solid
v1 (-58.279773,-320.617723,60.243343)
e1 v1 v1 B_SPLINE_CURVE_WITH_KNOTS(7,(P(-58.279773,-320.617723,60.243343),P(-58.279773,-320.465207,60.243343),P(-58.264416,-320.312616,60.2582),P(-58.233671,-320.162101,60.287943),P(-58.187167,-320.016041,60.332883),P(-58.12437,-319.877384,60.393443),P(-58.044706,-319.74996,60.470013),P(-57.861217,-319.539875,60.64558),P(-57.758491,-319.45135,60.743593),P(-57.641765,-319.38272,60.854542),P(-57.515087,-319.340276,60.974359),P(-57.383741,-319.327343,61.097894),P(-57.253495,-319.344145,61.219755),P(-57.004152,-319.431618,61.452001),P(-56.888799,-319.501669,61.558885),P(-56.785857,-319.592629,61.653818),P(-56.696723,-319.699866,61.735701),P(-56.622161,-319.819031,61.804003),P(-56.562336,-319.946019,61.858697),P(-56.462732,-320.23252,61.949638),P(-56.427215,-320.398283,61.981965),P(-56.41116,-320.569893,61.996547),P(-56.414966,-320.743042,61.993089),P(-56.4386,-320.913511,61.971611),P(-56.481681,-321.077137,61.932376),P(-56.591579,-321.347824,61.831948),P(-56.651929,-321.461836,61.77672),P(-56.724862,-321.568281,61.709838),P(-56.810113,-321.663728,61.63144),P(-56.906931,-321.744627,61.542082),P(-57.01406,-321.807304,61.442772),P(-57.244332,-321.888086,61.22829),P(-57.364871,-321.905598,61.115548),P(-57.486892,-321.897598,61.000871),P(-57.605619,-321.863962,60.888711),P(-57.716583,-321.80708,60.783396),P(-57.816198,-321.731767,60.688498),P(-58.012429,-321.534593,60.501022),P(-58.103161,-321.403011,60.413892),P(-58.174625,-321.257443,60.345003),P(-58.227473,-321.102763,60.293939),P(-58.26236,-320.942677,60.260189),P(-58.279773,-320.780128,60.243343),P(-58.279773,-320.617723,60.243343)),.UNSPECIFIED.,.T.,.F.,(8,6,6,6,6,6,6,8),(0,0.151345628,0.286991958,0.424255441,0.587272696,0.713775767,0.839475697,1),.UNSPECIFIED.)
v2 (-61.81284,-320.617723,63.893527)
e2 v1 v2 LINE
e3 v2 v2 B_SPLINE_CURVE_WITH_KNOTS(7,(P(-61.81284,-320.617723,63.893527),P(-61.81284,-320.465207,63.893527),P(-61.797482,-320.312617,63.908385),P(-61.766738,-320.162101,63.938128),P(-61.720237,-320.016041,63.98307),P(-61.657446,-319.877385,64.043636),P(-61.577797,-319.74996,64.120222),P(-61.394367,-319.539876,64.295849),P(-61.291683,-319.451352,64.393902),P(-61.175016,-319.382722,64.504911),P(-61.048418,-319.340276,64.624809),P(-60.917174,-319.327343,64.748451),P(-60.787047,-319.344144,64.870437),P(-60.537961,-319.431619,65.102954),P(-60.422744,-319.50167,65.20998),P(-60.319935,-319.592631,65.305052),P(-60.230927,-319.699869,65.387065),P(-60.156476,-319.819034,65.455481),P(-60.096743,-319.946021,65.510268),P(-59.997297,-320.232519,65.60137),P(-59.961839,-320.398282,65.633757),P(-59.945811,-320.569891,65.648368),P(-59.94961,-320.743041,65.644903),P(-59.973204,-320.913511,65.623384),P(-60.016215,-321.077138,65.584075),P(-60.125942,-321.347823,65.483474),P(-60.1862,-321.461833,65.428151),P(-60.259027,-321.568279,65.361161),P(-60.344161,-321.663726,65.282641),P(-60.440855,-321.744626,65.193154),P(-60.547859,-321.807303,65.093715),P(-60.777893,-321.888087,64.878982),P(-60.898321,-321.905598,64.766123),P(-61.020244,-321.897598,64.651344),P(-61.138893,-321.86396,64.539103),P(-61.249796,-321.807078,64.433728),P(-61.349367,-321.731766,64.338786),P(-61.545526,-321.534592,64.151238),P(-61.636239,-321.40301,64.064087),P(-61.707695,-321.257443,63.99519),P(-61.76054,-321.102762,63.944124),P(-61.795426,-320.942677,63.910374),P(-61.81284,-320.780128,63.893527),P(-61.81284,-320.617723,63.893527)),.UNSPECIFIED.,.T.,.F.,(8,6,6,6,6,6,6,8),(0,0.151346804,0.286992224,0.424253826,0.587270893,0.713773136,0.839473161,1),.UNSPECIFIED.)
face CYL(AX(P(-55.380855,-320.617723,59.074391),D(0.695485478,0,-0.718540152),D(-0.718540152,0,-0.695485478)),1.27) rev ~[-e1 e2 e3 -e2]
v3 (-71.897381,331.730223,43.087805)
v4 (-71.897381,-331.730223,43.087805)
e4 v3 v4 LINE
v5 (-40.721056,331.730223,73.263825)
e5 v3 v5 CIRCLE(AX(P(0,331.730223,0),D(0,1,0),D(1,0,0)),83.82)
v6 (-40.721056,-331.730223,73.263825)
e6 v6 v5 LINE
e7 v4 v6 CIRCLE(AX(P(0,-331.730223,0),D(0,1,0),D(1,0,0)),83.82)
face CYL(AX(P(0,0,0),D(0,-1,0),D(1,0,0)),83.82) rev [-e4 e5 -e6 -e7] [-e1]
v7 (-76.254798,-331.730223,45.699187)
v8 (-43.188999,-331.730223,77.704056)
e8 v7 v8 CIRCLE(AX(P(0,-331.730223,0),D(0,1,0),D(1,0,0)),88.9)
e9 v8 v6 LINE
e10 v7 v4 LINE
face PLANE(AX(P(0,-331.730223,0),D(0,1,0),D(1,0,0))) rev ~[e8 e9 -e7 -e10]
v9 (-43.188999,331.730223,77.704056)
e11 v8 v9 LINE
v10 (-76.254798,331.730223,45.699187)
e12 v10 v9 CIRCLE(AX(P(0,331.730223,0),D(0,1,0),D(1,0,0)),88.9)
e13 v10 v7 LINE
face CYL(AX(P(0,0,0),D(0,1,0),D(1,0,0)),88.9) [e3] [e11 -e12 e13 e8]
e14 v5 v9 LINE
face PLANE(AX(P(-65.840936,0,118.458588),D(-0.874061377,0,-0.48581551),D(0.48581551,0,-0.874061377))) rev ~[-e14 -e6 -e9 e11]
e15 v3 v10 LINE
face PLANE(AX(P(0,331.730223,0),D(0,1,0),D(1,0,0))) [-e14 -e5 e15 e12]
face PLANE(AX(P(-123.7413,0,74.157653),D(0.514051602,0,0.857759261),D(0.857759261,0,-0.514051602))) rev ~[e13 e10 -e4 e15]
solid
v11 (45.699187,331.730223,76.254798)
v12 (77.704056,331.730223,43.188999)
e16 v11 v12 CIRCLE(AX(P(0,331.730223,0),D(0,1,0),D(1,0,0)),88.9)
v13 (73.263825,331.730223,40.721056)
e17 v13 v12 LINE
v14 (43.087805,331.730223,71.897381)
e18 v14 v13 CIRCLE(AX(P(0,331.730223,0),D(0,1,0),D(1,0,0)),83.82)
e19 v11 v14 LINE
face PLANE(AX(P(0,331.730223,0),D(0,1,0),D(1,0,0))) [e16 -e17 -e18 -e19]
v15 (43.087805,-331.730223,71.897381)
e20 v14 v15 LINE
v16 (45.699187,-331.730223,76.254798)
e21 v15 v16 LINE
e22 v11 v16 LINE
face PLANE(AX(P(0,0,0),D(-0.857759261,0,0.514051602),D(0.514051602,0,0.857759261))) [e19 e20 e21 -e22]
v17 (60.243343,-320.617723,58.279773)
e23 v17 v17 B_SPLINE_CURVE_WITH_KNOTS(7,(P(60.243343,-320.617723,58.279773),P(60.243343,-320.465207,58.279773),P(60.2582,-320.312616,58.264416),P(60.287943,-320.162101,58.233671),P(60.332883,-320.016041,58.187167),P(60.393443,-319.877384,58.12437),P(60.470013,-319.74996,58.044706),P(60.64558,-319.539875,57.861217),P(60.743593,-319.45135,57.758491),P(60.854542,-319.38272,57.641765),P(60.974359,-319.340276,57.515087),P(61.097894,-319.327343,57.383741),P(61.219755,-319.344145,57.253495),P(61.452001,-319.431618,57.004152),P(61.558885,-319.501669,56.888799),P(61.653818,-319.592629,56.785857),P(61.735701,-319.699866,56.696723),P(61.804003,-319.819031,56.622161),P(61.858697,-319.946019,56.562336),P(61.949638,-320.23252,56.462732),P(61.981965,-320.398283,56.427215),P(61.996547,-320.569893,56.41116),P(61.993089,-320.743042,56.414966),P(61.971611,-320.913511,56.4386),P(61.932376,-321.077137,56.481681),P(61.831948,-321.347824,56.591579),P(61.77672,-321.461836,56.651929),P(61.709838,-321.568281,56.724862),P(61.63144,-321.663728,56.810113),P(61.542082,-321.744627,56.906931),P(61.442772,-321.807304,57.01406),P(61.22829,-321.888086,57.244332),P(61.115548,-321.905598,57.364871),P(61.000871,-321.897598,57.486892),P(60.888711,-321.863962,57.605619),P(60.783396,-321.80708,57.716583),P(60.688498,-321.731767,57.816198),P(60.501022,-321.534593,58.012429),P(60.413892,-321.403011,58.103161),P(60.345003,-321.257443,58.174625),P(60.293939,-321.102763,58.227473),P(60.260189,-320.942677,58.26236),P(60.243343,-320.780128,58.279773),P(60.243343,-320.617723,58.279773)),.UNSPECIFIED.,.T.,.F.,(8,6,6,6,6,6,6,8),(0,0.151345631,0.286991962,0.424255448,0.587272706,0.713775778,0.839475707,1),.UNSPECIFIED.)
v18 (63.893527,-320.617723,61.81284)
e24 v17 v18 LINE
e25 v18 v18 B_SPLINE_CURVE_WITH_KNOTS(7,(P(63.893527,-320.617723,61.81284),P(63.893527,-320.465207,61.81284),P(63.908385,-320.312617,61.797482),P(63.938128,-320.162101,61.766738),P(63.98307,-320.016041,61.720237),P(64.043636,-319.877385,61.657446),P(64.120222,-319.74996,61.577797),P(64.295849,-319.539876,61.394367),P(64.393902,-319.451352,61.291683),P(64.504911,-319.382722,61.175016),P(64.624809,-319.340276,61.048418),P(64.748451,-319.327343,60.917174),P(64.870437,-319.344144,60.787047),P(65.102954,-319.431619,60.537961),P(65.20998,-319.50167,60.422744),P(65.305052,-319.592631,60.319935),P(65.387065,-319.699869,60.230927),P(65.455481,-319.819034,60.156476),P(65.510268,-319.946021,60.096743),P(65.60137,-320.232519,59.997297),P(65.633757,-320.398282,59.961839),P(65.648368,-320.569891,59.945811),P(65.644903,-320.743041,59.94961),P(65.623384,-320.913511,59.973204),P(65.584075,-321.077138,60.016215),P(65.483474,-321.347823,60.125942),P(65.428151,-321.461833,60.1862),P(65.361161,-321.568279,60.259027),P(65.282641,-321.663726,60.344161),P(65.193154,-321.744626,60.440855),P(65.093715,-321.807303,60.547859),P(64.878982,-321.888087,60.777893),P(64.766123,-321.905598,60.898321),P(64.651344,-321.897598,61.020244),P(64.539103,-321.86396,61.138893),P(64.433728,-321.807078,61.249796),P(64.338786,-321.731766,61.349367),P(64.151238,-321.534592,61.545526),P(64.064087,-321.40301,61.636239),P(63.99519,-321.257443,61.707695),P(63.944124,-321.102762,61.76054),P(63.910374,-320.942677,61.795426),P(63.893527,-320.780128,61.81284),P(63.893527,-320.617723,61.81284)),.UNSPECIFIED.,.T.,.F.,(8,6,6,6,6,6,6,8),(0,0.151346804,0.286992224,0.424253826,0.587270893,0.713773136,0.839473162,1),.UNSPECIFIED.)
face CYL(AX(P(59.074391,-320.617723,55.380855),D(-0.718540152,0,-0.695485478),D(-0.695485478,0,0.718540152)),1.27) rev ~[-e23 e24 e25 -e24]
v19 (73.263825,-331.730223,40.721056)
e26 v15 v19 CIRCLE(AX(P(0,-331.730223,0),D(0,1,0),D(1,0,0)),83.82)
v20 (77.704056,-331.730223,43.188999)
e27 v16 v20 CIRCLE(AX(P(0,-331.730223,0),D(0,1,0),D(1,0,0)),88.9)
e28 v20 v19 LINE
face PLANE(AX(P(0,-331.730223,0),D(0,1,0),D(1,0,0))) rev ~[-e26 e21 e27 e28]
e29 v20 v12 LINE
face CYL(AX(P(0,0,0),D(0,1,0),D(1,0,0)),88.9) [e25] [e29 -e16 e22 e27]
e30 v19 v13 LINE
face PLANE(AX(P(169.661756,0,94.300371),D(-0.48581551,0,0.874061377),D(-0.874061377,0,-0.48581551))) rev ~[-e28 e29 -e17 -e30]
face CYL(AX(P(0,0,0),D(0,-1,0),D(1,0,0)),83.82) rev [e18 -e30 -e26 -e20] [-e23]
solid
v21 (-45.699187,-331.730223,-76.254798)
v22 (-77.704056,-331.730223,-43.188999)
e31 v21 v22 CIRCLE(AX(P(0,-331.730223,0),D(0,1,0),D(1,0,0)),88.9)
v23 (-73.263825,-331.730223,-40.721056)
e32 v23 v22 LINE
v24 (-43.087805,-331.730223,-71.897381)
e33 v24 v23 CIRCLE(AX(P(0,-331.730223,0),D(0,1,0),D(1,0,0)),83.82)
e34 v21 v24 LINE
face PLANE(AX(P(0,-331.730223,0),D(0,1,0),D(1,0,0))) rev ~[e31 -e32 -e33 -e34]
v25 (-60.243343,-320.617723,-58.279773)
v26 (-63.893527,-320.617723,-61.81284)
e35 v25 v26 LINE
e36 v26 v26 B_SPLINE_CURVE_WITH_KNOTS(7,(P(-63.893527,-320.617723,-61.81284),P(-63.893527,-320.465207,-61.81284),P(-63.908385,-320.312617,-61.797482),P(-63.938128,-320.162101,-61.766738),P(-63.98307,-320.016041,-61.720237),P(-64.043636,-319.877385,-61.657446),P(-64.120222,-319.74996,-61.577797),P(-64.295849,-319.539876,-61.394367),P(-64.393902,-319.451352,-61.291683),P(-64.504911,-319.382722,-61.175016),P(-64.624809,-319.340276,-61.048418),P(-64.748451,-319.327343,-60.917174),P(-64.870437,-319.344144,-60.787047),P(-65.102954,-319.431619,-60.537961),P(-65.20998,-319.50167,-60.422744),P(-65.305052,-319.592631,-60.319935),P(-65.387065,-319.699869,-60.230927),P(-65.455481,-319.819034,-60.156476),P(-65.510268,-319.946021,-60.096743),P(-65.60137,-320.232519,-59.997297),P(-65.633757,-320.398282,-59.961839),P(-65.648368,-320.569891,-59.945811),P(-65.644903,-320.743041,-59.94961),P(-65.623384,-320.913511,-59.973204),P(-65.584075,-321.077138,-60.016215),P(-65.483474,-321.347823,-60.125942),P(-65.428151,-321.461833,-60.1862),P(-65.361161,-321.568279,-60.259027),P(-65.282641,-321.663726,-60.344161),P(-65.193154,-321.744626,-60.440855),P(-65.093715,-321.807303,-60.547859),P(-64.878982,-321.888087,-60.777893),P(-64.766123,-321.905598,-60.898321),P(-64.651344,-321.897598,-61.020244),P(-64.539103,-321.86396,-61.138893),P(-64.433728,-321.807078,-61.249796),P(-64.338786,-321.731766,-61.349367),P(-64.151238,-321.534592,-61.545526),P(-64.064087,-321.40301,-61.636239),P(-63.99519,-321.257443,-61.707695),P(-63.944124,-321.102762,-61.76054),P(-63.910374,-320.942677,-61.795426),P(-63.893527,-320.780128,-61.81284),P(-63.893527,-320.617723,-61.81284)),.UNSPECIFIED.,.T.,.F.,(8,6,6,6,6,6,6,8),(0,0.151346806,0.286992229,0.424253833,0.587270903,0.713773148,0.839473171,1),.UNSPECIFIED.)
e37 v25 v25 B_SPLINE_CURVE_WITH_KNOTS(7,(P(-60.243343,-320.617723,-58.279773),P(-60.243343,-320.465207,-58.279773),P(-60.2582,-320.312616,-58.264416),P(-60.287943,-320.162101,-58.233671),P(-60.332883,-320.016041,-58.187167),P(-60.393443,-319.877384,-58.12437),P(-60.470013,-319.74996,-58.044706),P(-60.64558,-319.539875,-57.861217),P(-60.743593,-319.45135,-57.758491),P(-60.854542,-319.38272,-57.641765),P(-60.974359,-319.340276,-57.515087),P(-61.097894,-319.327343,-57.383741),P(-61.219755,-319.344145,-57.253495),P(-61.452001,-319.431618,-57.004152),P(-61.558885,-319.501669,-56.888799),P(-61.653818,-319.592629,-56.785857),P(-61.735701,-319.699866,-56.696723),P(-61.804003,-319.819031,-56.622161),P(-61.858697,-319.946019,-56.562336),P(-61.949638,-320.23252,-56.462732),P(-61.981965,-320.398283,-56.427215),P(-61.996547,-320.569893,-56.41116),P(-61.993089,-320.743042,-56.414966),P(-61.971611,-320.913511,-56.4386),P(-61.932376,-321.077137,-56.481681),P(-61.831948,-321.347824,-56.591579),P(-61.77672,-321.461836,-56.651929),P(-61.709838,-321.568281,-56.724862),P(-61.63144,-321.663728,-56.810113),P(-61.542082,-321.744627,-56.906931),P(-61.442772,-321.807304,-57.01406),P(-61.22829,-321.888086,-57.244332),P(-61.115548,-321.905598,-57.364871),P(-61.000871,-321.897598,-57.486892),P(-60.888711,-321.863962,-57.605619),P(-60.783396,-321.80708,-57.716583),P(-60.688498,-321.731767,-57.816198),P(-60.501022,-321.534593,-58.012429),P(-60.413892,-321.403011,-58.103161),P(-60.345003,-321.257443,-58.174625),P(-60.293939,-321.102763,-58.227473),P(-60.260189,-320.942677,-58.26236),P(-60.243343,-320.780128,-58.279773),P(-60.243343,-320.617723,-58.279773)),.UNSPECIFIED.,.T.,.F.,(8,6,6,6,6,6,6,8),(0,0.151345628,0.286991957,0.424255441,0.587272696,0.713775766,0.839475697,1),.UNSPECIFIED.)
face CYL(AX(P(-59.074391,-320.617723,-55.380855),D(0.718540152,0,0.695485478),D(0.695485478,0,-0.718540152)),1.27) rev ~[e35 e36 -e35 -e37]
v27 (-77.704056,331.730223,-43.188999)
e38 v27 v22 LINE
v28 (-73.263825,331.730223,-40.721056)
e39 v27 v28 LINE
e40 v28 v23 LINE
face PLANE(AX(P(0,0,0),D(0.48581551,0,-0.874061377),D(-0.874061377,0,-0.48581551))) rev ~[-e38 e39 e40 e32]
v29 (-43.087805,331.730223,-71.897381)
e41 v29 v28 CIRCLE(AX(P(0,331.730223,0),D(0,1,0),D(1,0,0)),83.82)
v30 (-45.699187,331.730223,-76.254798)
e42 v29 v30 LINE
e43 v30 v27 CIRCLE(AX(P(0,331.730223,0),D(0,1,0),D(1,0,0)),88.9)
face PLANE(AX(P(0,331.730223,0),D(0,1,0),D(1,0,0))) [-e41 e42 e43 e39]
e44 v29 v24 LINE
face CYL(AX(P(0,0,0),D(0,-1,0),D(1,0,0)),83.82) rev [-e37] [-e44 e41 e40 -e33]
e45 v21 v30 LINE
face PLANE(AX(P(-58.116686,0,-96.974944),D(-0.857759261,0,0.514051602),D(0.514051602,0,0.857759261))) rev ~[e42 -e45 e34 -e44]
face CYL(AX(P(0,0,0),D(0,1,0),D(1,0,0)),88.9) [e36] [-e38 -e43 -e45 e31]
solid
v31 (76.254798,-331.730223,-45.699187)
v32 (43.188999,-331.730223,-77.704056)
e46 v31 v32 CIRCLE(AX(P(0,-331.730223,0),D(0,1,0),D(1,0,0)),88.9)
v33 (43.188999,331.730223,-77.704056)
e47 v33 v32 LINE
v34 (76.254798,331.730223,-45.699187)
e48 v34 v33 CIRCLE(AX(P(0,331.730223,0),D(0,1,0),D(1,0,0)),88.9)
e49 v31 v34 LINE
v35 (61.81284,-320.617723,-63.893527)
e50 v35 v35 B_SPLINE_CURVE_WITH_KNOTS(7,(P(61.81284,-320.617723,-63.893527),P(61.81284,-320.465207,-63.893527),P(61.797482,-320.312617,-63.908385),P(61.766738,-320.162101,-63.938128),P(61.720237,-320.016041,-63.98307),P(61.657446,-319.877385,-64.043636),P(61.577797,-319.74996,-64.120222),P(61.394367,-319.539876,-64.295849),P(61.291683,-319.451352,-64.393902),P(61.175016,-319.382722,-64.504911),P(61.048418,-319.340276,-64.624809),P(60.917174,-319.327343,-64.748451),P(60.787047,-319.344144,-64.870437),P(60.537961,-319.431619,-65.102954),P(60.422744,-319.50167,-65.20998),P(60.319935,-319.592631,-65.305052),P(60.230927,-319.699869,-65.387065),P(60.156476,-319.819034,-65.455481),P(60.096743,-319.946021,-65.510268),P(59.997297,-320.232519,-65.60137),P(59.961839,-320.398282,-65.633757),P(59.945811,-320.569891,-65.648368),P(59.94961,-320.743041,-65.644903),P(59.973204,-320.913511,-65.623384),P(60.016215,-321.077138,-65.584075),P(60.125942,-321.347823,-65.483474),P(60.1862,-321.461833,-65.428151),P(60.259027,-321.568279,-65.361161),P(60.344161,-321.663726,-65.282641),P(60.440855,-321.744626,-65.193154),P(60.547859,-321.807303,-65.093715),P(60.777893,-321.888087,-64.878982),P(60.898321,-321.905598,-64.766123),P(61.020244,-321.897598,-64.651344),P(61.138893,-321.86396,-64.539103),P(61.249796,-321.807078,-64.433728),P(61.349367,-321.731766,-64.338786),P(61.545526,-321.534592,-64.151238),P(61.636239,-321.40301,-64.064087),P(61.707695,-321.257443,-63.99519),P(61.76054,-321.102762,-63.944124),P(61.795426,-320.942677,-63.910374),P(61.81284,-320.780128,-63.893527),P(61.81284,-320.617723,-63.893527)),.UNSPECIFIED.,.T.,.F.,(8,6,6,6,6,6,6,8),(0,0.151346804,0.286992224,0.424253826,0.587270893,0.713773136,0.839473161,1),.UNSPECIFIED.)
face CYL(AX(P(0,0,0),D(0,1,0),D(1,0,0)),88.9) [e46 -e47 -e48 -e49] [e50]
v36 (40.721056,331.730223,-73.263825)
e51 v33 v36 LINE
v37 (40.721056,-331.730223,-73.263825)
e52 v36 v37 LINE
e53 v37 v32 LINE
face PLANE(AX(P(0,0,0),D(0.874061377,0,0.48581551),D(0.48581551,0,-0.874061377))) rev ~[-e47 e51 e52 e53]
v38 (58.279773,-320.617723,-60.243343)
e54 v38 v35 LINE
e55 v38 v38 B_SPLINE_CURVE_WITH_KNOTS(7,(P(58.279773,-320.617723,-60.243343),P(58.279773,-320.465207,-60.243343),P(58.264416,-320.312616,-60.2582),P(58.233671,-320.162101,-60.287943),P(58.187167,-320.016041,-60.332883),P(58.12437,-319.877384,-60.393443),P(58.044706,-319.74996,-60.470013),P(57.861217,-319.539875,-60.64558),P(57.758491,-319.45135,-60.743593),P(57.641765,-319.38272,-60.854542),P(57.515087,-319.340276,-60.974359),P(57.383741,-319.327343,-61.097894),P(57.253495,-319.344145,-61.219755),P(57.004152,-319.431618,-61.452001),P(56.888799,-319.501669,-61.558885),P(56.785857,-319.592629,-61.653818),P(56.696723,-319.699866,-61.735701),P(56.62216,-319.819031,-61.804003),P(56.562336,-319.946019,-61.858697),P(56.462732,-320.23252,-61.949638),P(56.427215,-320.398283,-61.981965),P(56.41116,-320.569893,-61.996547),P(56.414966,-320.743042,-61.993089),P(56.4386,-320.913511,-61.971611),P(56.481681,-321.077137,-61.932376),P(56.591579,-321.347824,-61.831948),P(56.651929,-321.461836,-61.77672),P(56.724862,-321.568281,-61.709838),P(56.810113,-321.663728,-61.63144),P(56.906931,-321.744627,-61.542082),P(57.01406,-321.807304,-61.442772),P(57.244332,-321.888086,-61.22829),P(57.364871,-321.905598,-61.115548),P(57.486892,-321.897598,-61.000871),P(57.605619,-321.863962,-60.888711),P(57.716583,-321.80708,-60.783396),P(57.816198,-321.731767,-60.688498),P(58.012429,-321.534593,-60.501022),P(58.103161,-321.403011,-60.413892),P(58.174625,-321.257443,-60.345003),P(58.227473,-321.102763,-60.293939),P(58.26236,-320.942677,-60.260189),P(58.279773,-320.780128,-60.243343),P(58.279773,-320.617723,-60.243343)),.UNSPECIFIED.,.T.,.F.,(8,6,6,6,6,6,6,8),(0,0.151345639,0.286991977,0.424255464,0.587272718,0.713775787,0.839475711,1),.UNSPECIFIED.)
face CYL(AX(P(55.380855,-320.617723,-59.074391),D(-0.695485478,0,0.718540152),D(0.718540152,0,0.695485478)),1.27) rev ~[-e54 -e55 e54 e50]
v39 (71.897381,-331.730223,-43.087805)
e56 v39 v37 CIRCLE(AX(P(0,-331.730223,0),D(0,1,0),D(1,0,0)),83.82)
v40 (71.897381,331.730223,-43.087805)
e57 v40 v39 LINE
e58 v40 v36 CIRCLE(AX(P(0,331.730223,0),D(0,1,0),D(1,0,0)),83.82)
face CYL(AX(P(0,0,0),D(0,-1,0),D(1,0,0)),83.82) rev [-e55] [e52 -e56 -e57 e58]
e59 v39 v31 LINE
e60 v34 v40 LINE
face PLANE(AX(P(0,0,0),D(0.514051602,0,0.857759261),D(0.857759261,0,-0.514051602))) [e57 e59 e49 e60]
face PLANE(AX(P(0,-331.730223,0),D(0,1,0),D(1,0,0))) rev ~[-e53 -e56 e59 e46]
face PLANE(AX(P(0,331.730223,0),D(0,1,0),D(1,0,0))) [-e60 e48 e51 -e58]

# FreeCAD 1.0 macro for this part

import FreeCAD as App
import Part
import Sketcher
Q = App.Units.Quantity


def add_polygon(sketch, points):
    """Adds a closed chain of lines whose ends are joined by coincident constraints."""
    first, n = sketch.GeometryCount, len(points)
    for a, b in zip(points, points[1:] + points[:1]):
        sketch.addGeometry(Part.LineSegment(App.Vector(*a, 0), App.Vector(*b, 0)), False)
    for i in range(n):
        sketch.addConstraint(Sketcher.Constraint("Coincident", first + i, 2, first + (i + 1) % n, 1))

doc = App.newDocument("Part")
body = doc.addObject("PartDesign::Body", "Body")
body.AllowCompound = True

# Sketch on XZ plane
sketch1 = body.newObject("Sketcher::SketchObject", "Sketch")
sketch1.AttachmentSupport = (doc.getObject("XZ_Plane"), [""])
sketch1.MapMode = "FlatFace"
sketch1.addGeometry([
    Part.Circle(App.Vector(0, 0, 0), App.Vector(0, 0, 1), 88.9),
    Part.Circle(App.Vector(0, 0, 0), App.Vector(0, 0, 1), 83.82),
], False)
sketch1.addConstraint([
    Sketcher.Constraint("Coincident", 0, 3, -1, 1),
    Sketcher.Constraint("Coincident", 1, 3, -1, 1),
    Sketcher.Constraint("Diameter", 0, Q("7 in")),
    Sketcher.Constraint("Diameter", 1, Q("6.6 in")),
])
pad1 = body.newObject("PartDesign::Pad", "Pad")
pad1.Profile = sketch1
pad1.Length = 663.460446
pad1.Midplane = True

# Sketch on XZ plane
sketch2 = body.newObject("Sketcher::SketchObject", "Sketch001")
sketch2.AttachmentSupport = (doc.getObject("XZ_Plane"), [""])
sketch2.MapMode = "FlatFace"
add_polygon(sketch2, [(0, 0), (169.661756, 94.300371), (169.661756, -101.677593)])  # lines 0-2
add_polygon(sketch2, [(0, 0), (53.900027, -96.974944), (-58.116686, -96.974944)])  # lines 3-5
add_polygon(sketch2, [(-123.7413, -68.777141), (-123.7413, 74.157653), (0, 0)])  # lines 6-8
add_polygon(sketch2, [(0, 0), (-65.840936, 118.458588), (70.991745, 118.458588)])  # lines 9-11
sketch2.addConstraint([
    Sketcher.Constraint("Vertical", 1),
    Sketcher.Constraint("Horizontal", 4),
    Sketcher.Constraint("Vertical", 6),
    Sketcher.Constraint("Horizontal", 10),
    Sketcher.Constraint("Coincident", 2, 2, -1, 1),
    Sketcher.Constraint("Coincident", 5, 2, -1, 1),
    Sketcher.Constraint("Coincident", 7, 2, -1, 1),
    Sketcher.Constraint("Coincident", 11, 2, -1, 1),
    Sketcher.Constraint("Perpendicular", 0, 3),
    Sketcher.Constraint("Perpendicular", 2, 5),
    Sketcher.Constraint("Perpendicular", 5, 7),
    Sketcher.Constraint("Perpendicular", 3, 8),
    Sketcher.Constraint("Perpendicular", 8, 9),
    Sketcher.Constraint("Perpendicular", 7, 11),
    Sketcher.Constraint("DistanceX", 10, 1, 10, 2, Q("136.832681 mm")),
    Sketcher.Constraint("DistanceX", 6, 2, -1, 1, Q("123.7413 mm")),
    Sketcher.Constraint("Distance", 0, Q("194.107371 mm")),
    Sketcher.Constraint("Distance", 11, Q("138.102371 mm")),
    Sketcher.Constraint("DistanceX", 4, 2, 4, 1, Q("112.016713 mm")),
    Sketcher.Constraint("DistanceY", 1, 2, 1, 1, Q("195.977965 mm")),
])
pocket1 = body.newObject("PartDesign::Pocket", "Pocket")
pocket1.Profile = sketch2
pocket1.Type = "ThroughAll"
pocket1.Midplane = True

# Sketch on an angled plane
sketch3 = body.newObject("Sketcher::SketchObject", "Sketch002")
sketch3.Placement = App.Placement(App.Vector(-56.309219, 0, 58.175815), App.Rotation(App.Vector(-0.718540152, 0, -0.695485478), App.Vector(0, 1, 0), App.Vector(0.695485478, 0, -0.718540152), "ZXY"))
sketch3.addGeometry(Part.Circle(App.Vector(-1.292013, -320.617723, 0), App.Vector(0, 0, 1), 1.27), False)
sketch3.addConstraint([
    Sketcher.Constraint("Diameter", 0, Q("0.1 in")),
    Sketcher.Constraint("DistanceX", 0, 3, -1, 1, Q("1.292013 mm")),
    Sketcher.Constraint("DistanceY", 0, 3, -1, 1, Q("320.617723 mm")),
])
pocket2 = body.newObject("PartDesign::Pocket", "Pocket001")
pocket2.Profile = sketch3
pocket2.Type = "ThroughAll"
doc.recompute()

polarpattern = body.newObject("PartDesign::PolarPattern", "PolarPattern")
polarpattern.Originals = [pocket2]
polarpattern.Axis = (doc.getObject("Y_Axis"), [""])
polarpattern.Angle = 360
polarpattern.Occurrences = 4
body.Tip = polarpattern

doc.recompute()
